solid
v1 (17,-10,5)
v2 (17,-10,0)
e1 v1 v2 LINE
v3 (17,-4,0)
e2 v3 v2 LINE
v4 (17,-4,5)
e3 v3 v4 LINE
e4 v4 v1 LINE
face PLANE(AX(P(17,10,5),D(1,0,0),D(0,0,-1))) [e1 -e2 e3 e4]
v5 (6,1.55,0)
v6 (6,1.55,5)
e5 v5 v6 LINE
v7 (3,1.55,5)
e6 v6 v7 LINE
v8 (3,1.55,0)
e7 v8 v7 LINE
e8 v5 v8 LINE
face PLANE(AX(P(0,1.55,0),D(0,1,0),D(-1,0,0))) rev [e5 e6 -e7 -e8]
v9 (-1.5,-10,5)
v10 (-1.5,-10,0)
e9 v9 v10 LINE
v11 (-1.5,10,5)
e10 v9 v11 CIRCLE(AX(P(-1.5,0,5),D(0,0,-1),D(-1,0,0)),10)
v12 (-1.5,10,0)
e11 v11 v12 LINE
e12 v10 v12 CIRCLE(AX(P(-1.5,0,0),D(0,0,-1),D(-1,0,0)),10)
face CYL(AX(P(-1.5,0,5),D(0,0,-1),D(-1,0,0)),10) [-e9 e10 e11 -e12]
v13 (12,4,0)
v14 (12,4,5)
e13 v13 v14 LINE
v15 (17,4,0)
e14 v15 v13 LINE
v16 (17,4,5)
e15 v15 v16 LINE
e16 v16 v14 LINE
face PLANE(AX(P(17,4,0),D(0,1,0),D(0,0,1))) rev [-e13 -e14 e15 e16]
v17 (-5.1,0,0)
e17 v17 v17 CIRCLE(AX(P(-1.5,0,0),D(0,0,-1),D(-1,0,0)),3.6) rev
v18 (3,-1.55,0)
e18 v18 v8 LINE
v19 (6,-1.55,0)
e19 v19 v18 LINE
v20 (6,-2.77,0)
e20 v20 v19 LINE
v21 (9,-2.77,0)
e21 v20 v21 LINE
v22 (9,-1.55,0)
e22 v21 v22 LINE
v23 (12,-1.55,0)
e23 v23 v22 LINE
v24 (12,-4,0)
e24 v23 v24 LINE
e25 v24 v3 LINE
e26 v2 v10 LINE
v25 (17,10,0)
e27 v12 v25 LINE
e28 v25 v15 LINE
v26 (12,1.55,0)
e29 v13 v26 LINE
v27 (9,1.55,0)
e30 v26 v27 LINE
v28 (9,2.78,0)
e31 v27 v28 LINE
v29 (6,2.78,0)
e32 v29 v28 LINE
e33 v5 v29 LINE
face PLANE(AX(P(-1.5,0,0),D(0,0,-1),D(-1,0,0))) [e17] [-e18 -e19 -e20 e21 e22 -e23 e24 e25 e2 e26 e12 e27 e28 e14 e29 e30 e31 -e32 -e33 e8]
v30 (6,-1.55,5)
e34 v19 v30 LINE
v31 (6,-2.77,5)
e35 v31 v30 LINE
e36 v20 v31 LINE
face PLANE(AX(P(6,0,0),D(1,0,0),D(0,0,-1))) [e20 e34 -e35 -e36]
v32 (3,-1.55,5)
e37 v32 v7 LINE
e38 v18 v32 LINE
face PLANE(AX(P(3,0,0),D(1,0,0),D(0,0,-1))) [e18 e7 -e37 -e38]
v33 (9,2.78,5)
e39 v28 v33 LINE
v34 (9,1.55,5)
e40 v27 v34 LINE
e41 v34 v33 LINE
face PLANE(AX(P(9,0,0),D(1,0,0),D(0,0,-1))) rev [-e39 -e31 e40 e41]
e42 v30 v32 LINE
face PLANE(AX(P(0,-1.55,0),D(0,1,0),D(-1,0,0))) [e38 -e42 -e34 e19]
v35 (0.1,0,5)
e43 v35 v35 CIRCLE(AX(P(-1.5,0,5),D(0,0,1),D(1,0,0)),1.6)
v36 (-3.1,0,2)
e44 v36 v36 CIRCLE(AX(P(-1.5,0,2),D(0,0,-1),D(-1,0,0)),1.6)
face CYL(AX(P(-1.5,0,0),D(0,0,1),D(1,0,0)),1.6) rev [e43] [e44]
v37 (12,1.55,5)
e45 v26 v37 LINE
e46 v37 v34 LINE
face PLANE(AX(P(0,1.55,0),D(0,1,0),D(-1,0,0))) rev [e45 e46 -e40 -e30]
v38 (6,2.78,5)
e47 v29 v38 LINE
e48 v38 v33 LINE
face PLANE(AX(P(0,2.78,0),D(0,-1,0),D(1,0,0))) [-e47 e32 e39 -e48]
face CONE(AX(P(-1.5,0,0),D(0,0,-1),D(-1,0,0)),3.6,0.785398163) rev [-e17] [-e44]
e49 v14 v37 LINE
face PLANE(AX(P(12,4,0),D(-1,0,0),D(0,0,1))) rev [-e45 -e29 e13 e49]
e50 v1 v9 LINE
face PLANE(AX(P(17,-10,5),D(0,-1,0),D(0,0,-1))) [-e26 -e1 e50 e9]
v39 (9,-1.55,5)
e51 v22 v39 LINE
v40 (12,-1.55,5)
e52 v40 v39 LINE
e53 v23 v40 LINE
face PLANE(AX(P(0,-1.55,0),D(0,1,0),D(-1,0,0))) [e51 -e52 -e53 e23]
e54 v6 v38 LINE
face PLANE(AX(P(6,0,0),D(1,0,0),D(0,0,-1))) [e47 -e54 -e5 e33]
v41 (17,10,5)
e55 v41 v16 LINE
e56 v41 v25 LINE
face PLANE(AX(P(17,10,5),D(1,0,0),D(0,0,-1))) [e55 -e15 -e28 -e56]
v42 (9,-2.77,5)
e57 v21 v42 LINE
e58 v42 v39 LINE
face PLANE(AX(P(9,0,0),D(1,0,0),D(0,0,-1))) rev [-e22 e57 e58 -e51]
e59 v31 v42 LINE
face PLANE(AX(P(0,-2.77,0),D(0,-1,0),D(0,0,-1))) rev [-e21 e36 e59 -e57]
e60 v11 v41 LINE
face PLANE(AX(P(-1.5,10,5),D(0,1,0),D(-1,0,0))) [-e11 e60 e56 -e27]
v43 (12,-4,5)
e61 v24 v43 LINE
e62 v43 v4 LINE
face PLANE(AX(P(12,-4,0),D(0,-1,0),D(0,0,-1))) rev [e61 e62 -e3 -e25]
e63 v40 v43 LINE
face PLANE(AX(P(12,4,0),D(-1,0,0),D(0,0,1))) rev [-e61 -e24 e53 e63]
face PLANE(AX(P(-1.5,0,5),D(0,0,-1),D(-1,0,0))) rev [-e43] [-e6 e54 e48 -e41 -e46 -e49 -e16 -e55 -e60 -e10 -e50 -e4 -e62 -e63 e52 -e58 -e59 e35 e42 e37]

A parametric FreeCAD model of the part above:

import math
import FreeCAD as App
import Part
import Sketcher
from FreeCAD import Vector


def edges_at(feature, points):
    """Names of the edges that pass closest to the given points."""
    edges = feature.Shape.Edges
    near = lambda p: min(range(len(edges)), key=lambda i: edges[i].distToShape(Part.Vertex(*p))[0])
    return sorted({f"Edge{near(p) + 1}" for p in points})

doc = App.newDocument("Part")
body = doc.addObject("PartDesign::Body", "Body")

# Sketch on XY plane
sketch1 = body.newObject("Sketcher::SketchObject", "Sketch")
sketch1.AttachmentSupport = (doc.getObject("XY_Plane"), [""])
sketch1.MapMode = "FlatFace"
sketch1.addGeometry(Part.LineSegment(Vector(17, 10, 0), Vector(17, -10, 0)), False)
sketch1.addGeometry(Part.LineSegment(Vector(17, -10, 0), Vector(-2, -10, 0)), False)
sketch1.addGeometry(Part.ArcOfCircle(Part.Circle(Vector(-2, 0, 0), Vector(0, 0, 1), 10), math.radians(90), math.radians(270)), False)
sketch1.addGeometry(Part.LineSegment(Vector(-2, 10, 0), Vector(17, 10, 0)), False)
sketch1.addConstraint(Sketcher.Constraint("Coincident", 0, 2, 1, 1))
sketch1.addConstraint(Sketcher.Constraint("Tangent", 1, 2, 2, 2))
sketch1.addConstraint(Sketcher.Constraint("Tangent", 2, 1, 3, 1))
sketch1.addConstraint(Sketcher.Constraint("Coincident", 3, 2, 0, 1))
sketch1.addConstraint(Sketcher.Constraint("Vertical", 0))
sketch1.addConstraint(Sketcher.Constraint("Horizontal", 1))
sketch1.addConstraint(Sketcher.Constraint("Horizontal", 3))
sketch1.addConstraint(Sketcher.Constraint("PointOnObject", 2, 3, -1))
sketch1.addConstraint(Sketcher.Constraint("Radius", 2, 10.0))
sketch1.addConstraint(Sketcher.Constraint("DistanceX", 1, 2, 1, 1, 18.5))
sketch1.addConstraint(Sketcher.Constraint("DistanceX", -1, 1, 0, 2, 17.0))
pad1 = body.newObject("PartDesign::Pad", "Pad")
pad1.Profile = sketch1
pad1.Length = 5

# Sketch on XY plane
sketch2 = body.newObject("Sketcher::SketchObject", "Sketch001")
sketch2.AttachmentSupport = (doc.getObject("XY_Plane"), [""])
sketch2.MapMode = "FlatFace"
sketch2.AttachmentOffset = App.Placement(Vector(0, 0, 5), App.Rotation())
sketch2.addGeometry(Part.LineSegment(Vector(12, 4, 0), Vector(12, -4, 0)), False)
sketch2.addGeometry(Part.LineSegment(Vector(12, -4, 0), Vector(17, -4, 0)), False)
sketch2.addGeometry(Part.LineSegment(Vector(17, -4, 0), Vector(17, 4, 0)), False)
sketch2.addGeometry(Part.LineSegment(Vector(17, 4, 0), Vector(12, 4, 0)), False)
sketch2.addConstraint(Sketcher.Constraint("Coincident", 0, 2, 1, 1))
sketch2.addConstraint(Sketcher.Constraint("Coincident", 1, 2, 2, 1))
sketch2.addConstraint(Sketcher.Constraint("Coincident", 2, 2, 3, 1))
sketch2.addConstraint(Sketcher.Constraint("Coincident", 3, 2, 0, 1))
sketch2.addConstraint(Sketcher.Constraint("Vertical", 0))
sketch2.addConstraint(Sketcher.Constraint("Horizontal", 1))
sketch2.addConstraint(Sketcher.Constraint("Vertical", 2))
sketch2.addConstraint(Sketcher.Constraint("Horizontal", 3))
sketch2.addConstraint(Sketcher.Constraint("DistanceX", 1, 1, 1, 2, 5.0))
sketch2.addConstraint(Sketcher.Constraint("DistanceY", 0, 2, 0, 1, 8.0))
sketch2.addConstraint(Sketcher.Constraint("DistanceX", -1, 1, 0, 2, 12.0))
sketch2.addConstraint(Sketcher.Constraint("DistanceY", 0, 2, -1, 1, 4.0))
pocket1 = body.newObject("PartDesign::Pocket", "Pocket")
pocket1.Profile = sketch2
pocket1.Type = "ThroughAll"

# Sketch on XY plane
sketch3 = body.newObject("Sketcher::SketchObject", "Sketch002")
sketch3.AttachmentSupport = (doc.getObject("XY_Plane"), [""])
sketch3.MapMode = "FlatFace"
sketch3.AttachmentOffset = App.Placement(Vector(0, 0, 5), App.Rotation())
sketch3.addGeometry(Part.LineSegment(Vector(-10, -5, 0), Vector(7, -5, 0)), False)
sketch3.addGeometry(Part.LineSegment(Vector(7, -5, 0), Vector(7, 5, 0)), False)
sketch3.addGeometry(Part.LineSegment(Vector(7, 5, 0), Vector(-10, 5, 0)), False)
sketch3.addGeometry(Part.ArcOfCircle(Part.Circle(Vector(-1, 0, 0), Vector(0, 0, 1), 10), math.radians(150), math.radians(210)), False)
sketch3.addConstraint(Sketcher.Constraint("Coincident", 0, 2, 1, 1))
sketch3.addConstraint(Sketcher.Constraint("Coincident", 1, 2, 2, 1))
sketch3.addConstraint(Sketcher.Constraint("Coincident", 2, 2, 3, 1))
sketch3.addConstraint(Sketcher.Constraint("Coincident", 3, 2, 0, 1))
sketch3.addConstraint(Sketcher.Constraint("Horizontal", 0))
sketch3.addConstraint(Sketcher.Constraint("Vertical", 1))
sketch3.addConstraint(Sketcher.Constraint("Horizontal", 2))
sketch3.addConstraint(Sketcher.Constraint("Symmetric", 2, 2, 3, 2, -1))
sketch3.addConstraint(Sketcher.Constraint("Radius", 3, 10.0))
sketch3.addConstraint(Sketcher.Constraint("DistanceY", 1, 1, 1, 2, 10.0))
sketch3.addConstraint(Sketcher.Constraint("DistanceX", -1, 1, 0, 2, 7.0))
sketch3.addConstraint(Sketcher.Constraint("DistanceX", 3, 3, -1, 1, 1.5))
pocket2 = body.newObject("PartDesign::Pocket", "Pocket001")
pocket2.Profile = sketch3
pocket2.Length = 2.5

# Sketch on XY plane
sketch4 = body.newObject("Sketcher::SketchObject", "Sketch003")
sketch4.AttachmentSupport = (doc.getObject("XY_Plane"), [""])
sketch4.MapMode = "FlatFace"
sketch4.AttachmentOffset = App.Placement(Vector(0, 0, 2.5), App.Rotation())
sketch4.addGeometry(Part.Circle(Vector(-1.5, 0, 0), Vector(0, 0, 1), 1.2), False)
sketch4.addConstraint(Sketcher.Constraint("PointOnObject", 0, 3, -1))
sketch4.addConstraint(Sketcher.Constraint("Diameter", 0, 2.5))
sketch4.addConstraint(Sketcher.Constraint("DistanceX", 0, 3, -1, 1, 1.5))
doc.recompute()
hole = body.newObject("PartDesign::Hole", "Hole")
hole.Profile = sketch4
hole.ThreadType = "None"
hole.Diameter = 2.5
hole.DepthType = "Dimension"
hole.Depth = 2.5
hole.DrillPoint = "Flat"

# Sketch on XY plane
sketch5 = body.newObject("Sketcher::SketchObject", "Sketch004")
sketch5.AttachmentSupport = (doc.getObject("XY_Plane"), [""])
sketch5.MapMode = "FlatFace"
sketch5.AttachmentOffset = App.Placement(Vector(0, 0, 5), App.Rotation())
sketch5.addGeometry(Part.LineSegment(Vector(-10, -5, 0), Vector(7, -5, 0)), False)
sketch5.addGeometry(Part.LineSegment(Vector(7, -5, 0), Vector(7, 5, 0)), False)
sketch5.addGeometry(Part.LineSegment(Vector(7, 5, 0), Vector(-10, 5, 0)), False)
sketch5.addGeometry(Part.ArcOfCircle(Part.Circle(Vector(-1, 0, 0), Vector(0, 0, 1), 10), math.radians(150), math.radians(210)), False)
sketch5.addConstraint(Sketcher.Constraint("Coincident", 0, 2, 1, 1))
sketch5.addConstraint(Sketcher.Constraint("Coincident", 1, 2, 2, 1))
sketch5.addConstraint(Sketcher.Constraint("Coincident", 2, 2, 3, 1))
sketch5.addConstraint(Sketcher.Constraint("Coincident", 3, 2, 0, 1))
sketch5.addConstraint(Sketcher.Constraint("Horizontal", 0))
sketch5.addConstraint(Sketcher.Constraint("Vertical", 1))
sketch5.addConstraint(Sketcher.Constraint("Horizontal", 2))
sketch5.addConstraint(Sketcher.Constraint("Symmetric", 2, 2, 3, 2, -1))
sketch5.addConstraint(Sketcher.Constraint("Radius", 3, 10.0))
sketch5.addConstraint(Sketcher.Constraint("DistanceY", 1, 1, 1, 2, 10.0))
sketch5.addConstraint(Sketcher.Constraint("DistanceX", -1, 1, 0, 2, 7.0))
sketch5.addConstraint(Sketcher.Constraint("DistanceX", 3, 3, -1, 1, 1.5))
pad2 = body.newObject("PartDesign::Pad", "Pad001")
pad2.Profile = sketch5
pad2.Length = 5
pad2.Reversed = True

# Sketch on XY plane
sketch6 = body.newObject("Sketcher::SketchObject", "Sketch005")
sketch6.AttachmentSupport = (doc.getObject("XY_Plane"), [""])
sketch6.MapMode = "FlatFace"
sketch6.AttachmentOffset = App.Placement(Vector(0, 0, 5), App.Rotation())
sketch6.addGeometry(Part.Circle(Vector(-1.5, 0, 0), Vector(0, 0, 1), 1.6), False)
sketch6.addGeometry(Part.LineSegment(Vector(3, 1.6, 0), Vector(3, -1.6, 0)), False)
sketch6.addGeometry(Part.LineSegment(Vector(3, -1.6, 0), Vector(6, -1.6, 0)), False)
sketch6.addGeometry(Part.LineSegment(Vector(6, -1.6, 0), Vector(6, -2.8, 0)), False)
sketch6.addGeometry(Part.LineSegment(Vector(6, -2.8, 0), Vector(9, -2.8, 0)), False)
sketch6.addGeometry(Part.LineSegment(Vector(9, -2.8, 0), Vector(9, -1.6, 0)), False)
sketch6.addGeometry(Part.LineSegment(Vector(9, -1.6, 0), Vector(12, -1.6, 0)), False)
sketch6.addGeometry(Part.LineSegment(Vector(12, -1.6, 0), Vector(12, 1.6, 0)), False)
sketch6.addGeometry(Part.LineSegment(Vector(12, 1.6, 0), Vector(9, 1.6, 0)), False)
sketch6.addGeometry(Part.LineSegment(Vector(9, 1.6, 0), Vector(9, 2.8, 0)), False)
sketch6.addGeometry(Part.LineSegment(Vector(9, 2.8, 0), Vector(6, 2.8, 0)), False)
sketch6.addGeometry(Part.LineSegment(Vector(6, 2.8, 0), Vector(6, 1.6, 0)), False)
sketch6.addGeometry(Part.LineSegment(Vector(6, 1.6, 0), Vector(3, 1.6, 0)), False)
sketch6.addConstraint(Sketcher.Constraint("Coincident", 1, 2, 2, 1))
sketch6.addConstraint(Sketcher.Constraint("Coincident", 2, 2, 3, 1))
sketch6.addConstraint(Sketcher.Constraint("Coincident", 3, 2, 4, 1))
sketch6.addConstraint(Sketcher.Constraint("Coincident", 4, 2, 5, 1))
sketch6.addConstraint(Sketcher.Constraint("Coincident", 5, 2, 6, 1))
sketch6.addConstraint(Sketcher.Constraint("Coincident", 6, 2, 7, 1))
sketch6.addConstraint(Sketcher.Constraint("Coincident", 7, 2, 8, 1))
sketch6.addConstraint(Sketcher.Constraint("Coincident", 8, 2, 9, 1))
sketch6.addConstraint(Sketcher.Constraint("Coincident", 9, 2, 10, 1))
sketch6.addConstraint(Sketcher.Constraint("Coincident", 10, 2, 11, 1))
sketch6.addConstraint(Sketcher.Constraint("Coincident", 11, 2, 12, 1))
sketch6.addConstraint(Sketcher.Constraint("Coincident", 12, 2, 1, 1))
sketch6.addConstraint(Sketcher.Constraint("Vertical", 1))
sketch6.addConstraint(Sketcher.Constraint("Horizontal", 2))
sketch6.addConstraint(Sketcher.Constraint("Vertical", 3))
sketch6.addConstraint(Sketcher.Constraint("Horizontal", 4))
sketch6.addConstraint(Sketcher.Constraint("Vertical", 5))
sketch6.addConstraint(Sketcher.Constraint("Horizontal", 6))
sketch6.addConstraint(Sketcher.Constraint("Vertical", 7))
sketch6.addConstraint(Sketcher.Constraint("Horizontal", 8))
sketch6.addConstraint(Sketcher.Constraint("Vertical", 9))
sketch6.addConstraint(Sketcher.Constraint("Horizontal", 10))
sketch6.addConstraint(Sketcher.Constraint("Vertical", 11))
sketch6.addConstraint(Sketcher.Constraint("Horizontal", 12))
sketch6.addConstraint(Sketcher.Constraint("Symmetric", 5, 2, 8, 2, -1))
sketch6.addConstraint(Sketcher.Constraint("Symmetric", 2, 2, 11, 2, -1))
sketch6.addConstraint(Sketcher.Constraint("PointOnObject", 0, 3, -1))
sketch6.addConstraint(Sketcher.Constraint("Horizontal", 2, 2, 5, 2))
sketch6.addConstraint(Sketcher.Constraint("Equal", 2, 4))
sketch6.addConstraint(Sketcher.Constraint("Equal", 4, 6))
sketch6.addConstraint(Sketcher.Constraint("Diameter", 0, 3.2))
sketch6.addConstraint(Sketcher.Constraint("DistanceX", 2, 1, 2, 2, 3.0))
sketch6.addConstraint(Sketcher.Constraint("DistanceY", 1, 2, 1, 1, 3.1))
sketch6.addConstraint(Sketcher.Constraint("DistanceX", -1, 1, 1, 2, 3.0))
sketch6.addConstraint(Sketcher.Constraint("DistanceY", 3, 2, 3, 1, 1.22))
sketch6.addConstraint(Sketcher.Constraint("DistanceY", 9, 1, 9, 2, 1.23))
sketch6.addConstraint(Sketcher.Constraint("DistanceX", 0, 3, -1, 1, 1.5))
pocket3 = body.newObject("PartDesign::Pocket", "Pocket002")
pocket3.Profile = sketch6
pocket3.Type = "ThroughAll"
doc.recompute()

chamfer = body.newObject("PartDesign::Chamfer", "Chamfer")
chamfer.Base = (pocket3, edges_at(pocket3, [(-3.1, 0, 0)]))
chamfer.Size = 2

doc.recompute()
